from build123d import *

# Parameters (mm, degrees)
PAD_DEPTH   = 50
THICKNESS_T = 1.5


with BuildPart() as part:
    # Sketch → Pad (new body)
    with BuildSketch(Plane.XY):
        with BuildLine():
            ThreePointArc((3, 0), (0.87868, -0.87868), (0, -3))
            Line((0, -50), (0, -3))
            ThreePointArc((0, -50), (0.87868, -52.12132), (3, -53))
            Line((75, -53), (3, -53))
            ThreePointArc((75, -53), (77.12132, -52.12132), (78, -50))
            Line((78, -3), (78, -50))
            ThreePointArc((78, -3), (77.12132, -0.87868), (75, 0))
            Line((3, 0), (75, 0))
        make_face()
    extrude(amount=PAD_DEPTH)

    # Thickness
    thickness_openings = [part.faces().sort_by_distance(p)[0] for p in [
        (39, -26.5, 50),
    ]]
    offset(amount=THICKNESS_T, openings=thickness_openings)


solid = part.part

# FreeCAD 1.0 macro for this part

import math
import FreeCAD as App
import Part
import Sketcher


def faces_at(feature, points):
    """Names of the faces that lie closest to the given points."""
    faces = feature.Shape.Faces
    near = lambda p: min(range(len(faces)), key=lambda i: faces[i].distToShape(Part.Vertex(*p))[0])
    return sorted({f"Face{near(p) + 1}" for p in points})

doc = App.newDocument("Part")
body = doc.addObject("PartDesign::Body", "Body")

sketch1 = doc.addObject("Sketcher::SketchObject", "Sketch")
body.addObject(sketch1)
sketch1.AttachmentSupport = (doc.XY_Plane, [""])
sketch1.MapMode = "FlatFace"
sketch1.addGeometry([
    Part.ArcOfCircle(Part.Circle(App.Vector(3, -3, 0), App.Vector(0, 0, 1), 3), math.radians(90), math.radians(180)),
    Part.LineSegment(App.Vector(0, -3, 0), App.Vector(0, -50, 0)),
    Part.ArcOfCircle(Part.Circle(App.Vector(3, -50, 0), App.Vector(0, 0, 1), 3), math.radians(-180), math.radians(-90)),
    Part.LineSegment(App.Vector(3, -53, 0), App.Vector(75, -53, 0)),
    Part.ArcOfCircle(Part.Circle(App.Vector(75, -50, 0), App.Vector(0, 0, 1), 3), math.radians(-90), math.radians(0)),
    Part.LineSegment(App.Vector(78, -50, 0), App.Vector(78, -3, 0)),
    Part.ArcOfCircle(Part.Circle(App.Vector(75, -3, 0), App.Vector(0, 0, 1), 3), math.radians(0), math.radians(90)),
    Part.LineSegment(App.Vector(75, 0, 0), App.Vector(3, 0, 0)),
], False)
sketch1.addConstraint([
    Sketcher.Constraint("Tangent", 0, 2, 1, 1),
    Sketcher.Constraint("Tangent", 1, 2, 2, 1),
    Sketcher.Constraint("Tangent", 2, 2, 3, 1),
    Sketcher.Constraint("Tangent", 3, 2, 4, 1),
    Sketcher.Constraint("Tangent", 4, 2, 5, 1),
    Sketcher.Constraint("Tangent", 5, 2, 6, 1),
    Sketcher.Constraint("Tangent", 6, 2, 7, 1),
    Sketcher.Constraint("Tangent", 7, 2, 0, 1),
    Sketcher.Constraint("Vertical", 1),
    Sketcher.Constraint("Horizontal", 3),
    Sketcher.Constraint("Vertical", 5),
    Sketcher.Constraint("Horizontal", 7),
    Sketcher.Constraint("Equal", 0, 2),
    Sketcher.Constraint("Equal", 2, 4),
    Sketcher.Constraint("Equal", 4, 6),
    Sketcher.Constraint("PointOnObject", 0, 2, -2),
    Sketcher.Constraint("PointOnObject", 6, 2, -1),
    Sketcher.Constraint("Radius", 0, 3.000001),
    Sketcher.Constraint("DistanceX", 3, 1, 3, 2, 72.0),
    Sketcher.Constraint("DistanceY", 1, 2, 1, 1, 47.0),
])
pad1 = doc.addObject("PartDesign::Pad", "Pad")
body.addObject(pad1)
pad1.Profile = sketch1
pad1.Length = 50
doc.recompute()

thickness = doc.addObject("PartDesign::Thickness", "Thickness")
body.addObject(thickness)
thickness.Base = (pad1, faces_at(pad1, [(39, -26.5, 50)]))
thickness.Value = 1.5
thickness.Reversed = False
thickness.Join = "Arc"

doc.recompute()
